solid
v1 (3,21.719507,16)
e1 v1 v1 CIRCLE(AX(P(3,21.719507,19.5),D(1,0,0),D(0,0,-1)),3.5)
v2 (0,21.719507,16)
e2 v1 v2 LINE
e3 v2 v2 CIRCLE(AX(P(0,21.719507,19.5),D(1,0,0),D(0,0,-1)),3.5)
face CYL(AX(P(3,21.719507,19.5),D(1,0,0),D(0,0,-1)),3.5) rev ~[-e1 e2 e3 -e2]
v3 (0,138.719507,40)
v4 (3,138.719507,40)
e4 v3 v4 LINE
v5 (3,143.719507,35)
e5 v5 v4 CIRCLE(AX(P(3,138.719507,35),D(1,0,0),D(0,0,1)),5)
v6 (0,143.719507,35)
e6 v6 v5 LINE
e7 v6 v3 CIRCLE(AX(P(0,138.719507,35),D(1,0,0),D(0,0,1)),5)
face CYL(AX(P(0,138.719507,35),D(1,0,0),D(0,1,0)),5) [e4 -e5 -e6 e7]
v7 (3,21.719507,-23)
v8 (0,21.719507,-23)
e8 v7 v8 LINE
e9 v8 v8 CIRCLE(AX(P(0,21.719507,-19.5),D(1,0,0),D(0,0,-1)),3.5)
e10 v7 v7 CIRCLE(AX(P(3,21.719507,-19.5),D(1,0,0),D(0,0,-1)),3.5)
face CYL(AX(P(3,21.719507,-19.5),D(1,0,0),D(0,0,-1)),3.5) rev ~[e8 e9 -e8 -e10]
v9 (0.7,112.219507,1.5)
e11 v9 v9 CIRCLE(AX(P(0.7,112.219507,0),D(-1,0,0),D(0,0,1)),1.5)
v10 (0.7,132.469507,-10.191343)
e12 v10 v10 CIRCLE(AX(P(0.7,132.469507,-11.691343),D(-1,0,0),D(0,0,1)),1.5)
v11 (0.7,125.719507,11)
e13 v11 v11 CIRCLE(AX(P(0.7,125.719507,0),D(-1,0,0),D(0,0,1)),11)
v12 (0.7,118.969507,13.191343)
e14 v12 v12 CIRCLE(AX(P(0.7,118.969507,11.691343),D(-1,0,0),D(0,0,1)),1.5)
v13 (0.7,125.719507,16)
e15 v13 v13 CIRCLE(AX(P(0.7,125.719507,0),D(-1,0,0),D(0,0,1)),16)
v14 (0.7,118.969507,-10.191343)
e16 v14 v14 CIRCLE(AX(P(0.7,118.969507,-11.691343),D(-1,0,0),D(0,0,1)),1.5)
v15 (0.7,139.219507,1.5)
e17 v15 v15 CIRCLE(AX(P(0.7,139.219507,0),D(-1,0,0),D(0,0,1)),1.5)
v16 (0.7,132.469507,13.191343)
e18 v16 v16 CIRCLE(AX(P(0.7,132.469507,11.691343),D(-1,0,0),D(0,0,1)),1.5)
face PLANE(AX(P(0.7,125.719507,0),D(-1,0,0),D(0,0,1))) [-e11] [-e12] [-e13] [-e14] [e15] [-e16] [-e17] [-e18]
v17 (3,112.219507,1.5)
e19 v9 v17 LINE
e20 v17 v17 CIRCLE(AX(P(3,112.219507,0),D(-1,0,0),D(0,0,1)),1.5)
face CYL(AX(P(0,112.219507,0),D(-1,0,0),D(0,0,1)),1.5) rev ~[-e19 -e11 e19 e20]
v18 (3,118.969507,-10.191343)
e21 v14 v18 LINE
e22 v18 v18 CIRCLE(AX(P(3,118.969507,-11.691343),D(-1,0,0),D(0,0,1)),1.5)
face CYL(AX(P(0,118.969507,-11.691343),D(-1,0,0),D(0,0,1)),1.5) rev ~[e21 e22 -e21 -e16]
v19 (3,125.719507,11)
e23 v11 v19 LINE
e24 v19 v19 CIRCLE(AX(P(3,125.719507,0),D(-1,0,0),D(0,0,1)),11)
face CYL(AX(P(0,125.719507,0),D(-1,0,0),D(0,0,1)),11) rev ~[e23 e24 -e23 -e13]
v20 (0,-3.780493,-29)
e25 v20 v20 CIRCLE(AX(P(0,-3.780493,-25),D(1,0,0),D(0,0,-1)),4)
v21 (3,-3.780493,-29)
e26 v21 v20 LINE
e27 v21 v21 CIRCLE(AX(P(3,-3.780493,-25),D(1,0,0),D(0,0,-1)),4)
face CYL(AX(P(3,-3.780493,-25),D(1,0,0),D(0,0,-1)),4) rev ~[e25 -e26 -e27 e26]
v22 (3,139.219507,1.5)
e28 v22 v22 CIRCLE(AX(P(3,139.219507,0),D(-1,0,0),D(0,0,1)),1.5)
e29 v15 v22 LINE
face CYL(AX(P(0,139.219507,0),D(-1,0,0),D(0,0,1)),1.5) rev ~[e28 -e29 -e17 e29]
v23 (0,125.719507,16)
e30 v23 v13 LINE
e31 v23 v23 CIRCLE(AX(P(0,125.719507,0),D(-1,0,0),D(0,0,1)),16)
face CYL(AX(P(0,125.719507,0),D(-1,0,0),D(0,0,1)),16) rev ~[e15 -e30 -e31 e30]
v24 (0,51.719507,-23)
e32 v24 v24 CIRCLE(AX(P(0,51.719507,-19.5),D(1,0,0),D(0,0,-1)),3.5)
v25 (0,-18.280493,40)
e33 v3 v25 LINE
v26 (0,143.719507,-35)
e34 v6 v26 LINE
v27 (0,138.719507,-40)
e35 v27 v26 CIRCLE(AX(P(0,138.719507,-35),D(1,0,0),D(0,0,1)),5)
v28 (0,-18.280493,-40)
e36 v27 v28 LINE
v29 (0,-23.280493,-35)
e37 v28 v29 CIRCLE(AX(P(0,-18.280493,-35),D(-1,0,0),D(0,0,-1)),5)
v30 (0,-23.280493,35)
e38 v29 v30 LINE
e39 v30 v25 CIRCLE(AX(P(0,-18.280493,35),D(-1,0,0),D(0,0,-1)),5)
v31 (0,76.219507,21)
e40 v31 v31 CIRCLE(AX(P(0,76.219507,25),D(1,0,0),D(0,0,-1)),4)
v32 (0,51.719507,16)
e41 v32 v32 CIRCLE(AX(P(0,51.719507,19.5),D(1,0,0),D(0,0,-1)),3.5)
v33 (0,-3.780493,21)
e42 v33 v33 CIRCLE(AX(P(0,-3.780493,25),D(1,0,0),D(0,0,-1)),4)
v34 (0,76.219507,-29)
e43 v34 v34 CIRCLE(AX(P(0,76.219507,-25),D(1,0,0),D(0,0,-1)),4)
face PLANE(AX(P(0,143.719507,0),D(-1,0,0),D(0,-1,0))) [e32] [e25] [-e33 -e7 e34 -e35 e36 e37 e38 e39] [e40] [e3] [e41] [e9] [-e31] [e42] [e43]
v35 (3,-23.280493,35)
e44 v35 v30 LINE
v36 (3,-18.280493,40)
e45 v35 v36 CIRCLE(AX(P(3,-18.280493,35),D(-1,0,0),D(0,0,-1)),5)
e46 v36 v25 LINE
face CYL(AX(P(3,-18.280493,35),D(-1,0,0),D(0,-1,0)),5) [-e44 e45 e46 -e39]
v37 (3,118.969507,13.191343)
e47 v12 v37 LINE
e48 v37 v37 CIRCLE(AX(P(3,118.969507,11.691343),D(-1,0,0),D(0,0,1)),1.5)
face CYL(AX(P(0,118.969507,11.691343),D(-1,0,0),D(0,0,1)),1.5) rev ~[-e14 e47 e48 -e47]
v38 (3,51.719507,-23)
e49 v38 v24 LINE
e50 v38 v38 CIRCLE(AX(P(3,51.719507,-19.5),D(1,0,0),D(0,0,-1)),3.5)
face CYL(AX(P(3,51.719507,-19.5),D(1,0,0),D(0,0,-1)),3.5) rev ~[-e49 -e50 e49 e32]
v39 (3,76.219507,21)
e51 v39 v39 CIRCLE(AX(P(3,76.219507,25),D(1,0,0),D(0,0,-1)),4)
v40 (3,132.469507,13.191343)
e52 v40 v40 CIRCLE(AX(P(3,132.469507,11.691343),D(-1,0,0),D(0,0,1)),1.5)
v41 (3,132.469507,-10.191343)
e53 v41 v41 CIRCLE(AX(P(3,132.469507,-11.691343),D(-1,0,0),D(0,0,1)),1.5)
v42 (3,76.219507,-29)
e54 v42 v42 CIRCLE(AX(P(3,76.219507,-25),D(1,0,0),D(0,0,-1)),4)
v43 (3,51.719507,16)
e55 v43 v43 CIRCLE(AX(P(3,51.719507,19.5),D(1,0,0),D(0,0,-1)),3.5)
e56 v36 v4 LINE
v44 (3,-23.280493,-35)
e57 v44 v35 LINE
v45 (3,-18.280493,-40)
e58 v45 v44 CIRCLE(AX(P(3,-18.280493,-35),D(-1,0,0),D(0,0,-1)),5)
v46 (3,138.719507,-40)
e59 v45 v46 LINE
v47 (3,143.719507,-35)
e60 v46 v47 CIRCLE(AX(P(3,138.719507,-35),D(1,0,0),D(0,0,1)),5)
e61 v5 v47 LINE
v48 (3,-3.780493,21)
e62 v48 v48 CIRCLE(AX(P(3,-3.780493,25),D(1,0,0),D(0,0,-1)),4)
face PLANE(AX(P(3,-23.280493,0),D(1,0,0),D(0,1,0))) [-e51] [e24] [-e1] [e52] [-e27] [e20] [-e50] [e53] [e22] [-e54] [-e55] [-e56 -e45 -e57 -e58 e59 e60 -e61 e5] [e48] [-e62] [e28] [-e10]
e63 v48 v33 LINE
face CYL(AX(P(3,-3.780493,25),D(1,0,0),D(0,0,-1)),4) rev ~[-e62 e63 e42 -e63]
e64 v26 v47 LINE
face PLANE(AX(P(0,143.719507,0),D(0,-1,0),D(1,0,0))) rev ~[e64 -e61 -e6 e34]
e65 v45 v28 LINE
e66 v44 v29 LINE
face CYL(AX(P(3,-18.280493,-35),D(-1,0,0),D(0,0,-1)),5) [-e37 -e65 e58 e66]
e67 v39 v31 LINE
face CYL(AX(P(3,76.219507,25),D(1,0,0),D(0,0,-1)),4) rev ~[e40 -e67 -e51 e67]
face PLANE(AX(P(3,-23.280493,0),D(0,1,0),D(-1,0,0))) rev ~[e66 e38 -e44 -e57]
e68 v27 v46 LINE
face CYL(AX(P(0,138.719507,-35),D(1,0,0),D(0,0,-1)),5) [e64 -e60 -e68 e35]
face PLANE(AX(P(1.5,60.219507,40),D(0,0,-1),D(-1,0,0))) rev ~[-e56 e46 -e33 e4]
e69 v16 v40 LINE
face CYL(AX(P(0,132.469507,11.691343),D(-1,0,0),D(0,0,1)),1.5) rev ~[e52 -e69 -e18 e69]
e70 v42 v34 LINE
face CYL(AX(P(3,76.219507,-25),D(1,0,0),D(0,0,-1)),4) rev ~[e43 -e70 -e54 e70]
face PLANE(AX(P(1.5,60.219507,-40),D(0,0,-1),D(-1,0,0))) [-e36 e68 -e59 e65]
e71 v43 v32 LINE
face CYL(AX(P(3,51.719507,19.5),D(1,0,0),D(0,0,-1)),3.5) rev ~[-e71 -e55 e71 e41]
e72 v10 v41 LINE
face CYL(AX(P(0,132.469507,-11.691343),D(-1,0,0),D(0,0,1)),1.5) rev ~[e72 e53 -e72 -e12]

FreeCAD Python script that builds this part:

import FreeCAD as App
import Part
import Sketcher

V = App.Vector


def edges_at(feature, points):
    """Names of the edges that pass closest to the given points."""
    edges = feature.Shape.Edges
    near = lambda p: min(range(len(edges)), key=lambda i: edges[i].distToShape(Part.Vertex(*p))[0])
    return sorted({f"Edge{near(p) + 1}" for p in points})

doc = App.newDocument("Part")
params = doc.addObject("Spreadsheet::Sheet", "Params")
for row, (alias, value) in enumerate([
    ("sketch1_width", "3 mm"),
    ("sketch1_height", "167 mm"),
    ("pad1_length", "80 mm"),
    ("sketch2_diameter", "7 mm"),
    ("sketch2_diameter2", "8 mm"),
    ("sketch3_diameter", "3 mm"),
    ("sketch3_diameter2", "22 mm"),
    ("sketch4_diameter", "32 mm"),
    ("pocket3_length", "0.7 mm"),
    ("fillet_radius", "5 mm"),
], start=1):
    params.set(f"A{row}", alias)
    params.set(f"B{row}", "=" + value)
    params.setAlias(f"B{row}", alias)

body = doc.addObject("PartDesign::Body", "Body")

sketch1 = body.newObject("Sketcher::SketchObject", "Sketch")
sketch1.AttachmentSupport = (doc.getObject("XY_Plane"), [""])
sketch1.MapMode = "FlatFace"
sketch1.addGeometry(Part.LineSegment(V(0, 143.7, 0), V(0, -23.3, 0)), False)
sketch1.addGeometry(Part.LineSegment(V(0, -23.3, 0), V(3, -23.3, 0)), False)
sketch1.addGeometry(Part.LineSegment(V(3, -23.3, 0), V(3, 143.7, 0)), False)
sketch1.addGeometry(Part.LineSegment(V(3, 143.7, 0), V(0, 143.7, 0)), False)
sketch1.addConstraint(Sketcher.Constraint("Coincident", 0, 2, 1, 1))
sketch1.addConstraint(Sketcher.Constraint("Coincident", 1, 2, 2, 1))
sketch1.addConstraint(Sketcher.Constraint("Coincident", 2, 2, 3, 1))
sketch1.addConstraint(Sketcher.Constraint("Coincident", 3, 2, 0, 1))
sketch1.addConstraint(Sketcher.Constraint("Vertical", 0))
sketch1.addConstraint(Sketcher.Constraint("Horizontal", 1))
sketch1.addConstraint(Sketcher.Constraint("Vertical", 2))
sketch1.addConstraint(Sketcher.Constraint("Horizontal", 3))
sketch1.addConstraint(Sketcher.Constraint("PointOnObject", 0, 2, -2))
sketch1.addConstraint(Sketcher.Constraint("DistanceX", 1, 1, 1, 2, 3.0))
sketch1.addConstraint(Sketcher.Constraint("DistanceY", 0, 2, 0, 1, 167.0))
sketch1.addConstraint(Sketcher.Constraint("DistanceY", 0, 2, -1, 1, 23.280493))
sketch1.setExpression("Constraints[9]", "Params.sketch1_width")
sketch1.setExpression("Constraints[10]", "Params.sketch1_height")
pad1 = body.newObject("PartDesign::Pad", "Pad")
pad1.Profile = sketch1
pad1.setExpression("Length", "Params.pad1_length")
pad1.Midplane = True

sketch2 = body.newObject("Sketcher::SketchObject", "Sketch001")
sketch2.AttachmentSupport = (doc.getObject("YZ_Plane"), [""])
sketch2.MapMode = "FlatFace"
sketch2.AttachmentOffset = App.Placement(V(0, 0, 3), App.Rotation())
sketch2.addGeometry(Part.Circle(V(21.7, 19.5, 0), V(0, 0, 1), 3.5), False)
sketch2.addGeometry(Part.Circle(V(21.7, -19.5, 0), V(0, 0, 1), 3.5), False)
sketch2.addGeometry(Part.Circle(V(51.7, -19.5, 0), V(0, 0, 1), 3.5), False)
sketch2.addGeometry(Part.Circle(V(51.7, 19.5, 0), V(0, 0, 1), 3.5), False)
sketch2.addGeometry(Part.Circle(V(76.2, -25, 0), V(0, 0, 1), 4), False)
sketch2.addGeometry(Part.Circle(V(76.2, 25, 0), V(0, 0, 1), 4), False)
sketch2.addGeometry(Part.Circle(V(-3.8, 25, 0), V(0, 0, 1), 4), False)
sketch2.addGeometry(Part.Circle(V(-3.8, -25, 0), V(0, 0, 1), 4), False)
sketch2.addConstraint(Sketcher.Constraint("Equal", 0, 1))
sketch2.addConstraint(Sketcher.Constraint("Equal", 1, 2))
sketch2.addConstraint(Sketcher.Constraint("Equal", 2, 3))
sketch2.addConstraint(Sketcher.Constraint("Equal", 4, 5))
sketch2.addConstraint(Sketcher.Constraint("Equal", 5, 6))
sketch2.addConstraint(Sketcher.Constraint("Equal", 6, 7))
sketch2.addConstraint(Sketcher.Constraint("Symmetric", 0, 3, 1, 3, -1))
sketch2.addConstraint(Sketcher.Constraint("Symmetric", 2, 3, 3, 3, -1))
sketch2.addConstraint(Sketcher.Constraint("Symmetric", 4, 3, 5, 3, -1))
sketch2.addConstraint(Sketcher.Constraint("Symmetric", 6, 3, 7, 3, -1))
sketch2.addConstraint(Sketcher.Constraint("Horizontal", 1, 3, 2, 3))
sketch2.addConstraint(Sketcher.Constraint("Horizontal", 5, 3, 6, 3))
sketch2.addConstraint(Sketcher.Constraint("Diameter", 0, 7.0))
sketch2.addConstraint(Sketcher.Constraint("Diameter", 4, 8.0))
sketch2.addConstraint(Sketcher.Constraint("DistanceY", 4, 3, -1, 1, 25.0))
sketch2.addConstraint(Sketcher.Constraint("DistanceY", 1, 3, 0, 3, 39.0))
sketch2.addConstraint(Sketcher.Constraint("DistanceX", 1, 3, 2, 3, 30.0))
sketch2.addConstraint(Sketcher.Constraint("DistanceX", 6, 3, 5, 3, 80.0))
sketch2.addConstraint(Sketcher.Constraint("DistanceX", 2, 3, 4, 3, 24.5))
sketch2.addConstraint(Sketcher.Constraint("DistanceX", -1, 1, 0, 3, 21.719507))
sketch2.setExpression("Constraints[12]", "Params.sketch2_diameter")
sketch2.setExpression("Constraints[13]", "Params.sketch2_diameter2")
pocket1 = body.newObject("PartDesign::Pocket", "Pocket")
pocket1.Profile = sketch2
pocket1.Type = "ThroughAll"

sketch3 = body.newObject("Sketcher::SketchObject", "Sketch002")
sketch3.AttachmentSupport = (doc.getObject("YZ_Plane"), [""])
sketch3.MapMode = "FlatFace"
sketch3.addGeometry(Part.Circle(V(139.2, 0, 0), V(0, 0, 1), 1.5), False)
sketch3.addGeometry(Part.Circle(V(125.7, 0, 0), V(0, 0, 1), 11), False)
sketch3.addGeometry(Part.Circle(V(132.5, 11.7, 0), V(0, 0, 1), 1.5), False)
sketch3.addGeometry(Part.Circle(V(119, 11.7, 0), V(0, 0, 1), 1.5), False)
sketch3.addGeometry(Part.Circle(V(112.2, 0, 0), V(0, 0, 1), 1.5), False)
sketch3.addGeometry(Part.Circle(V(119, -11.7, 0), V(0, 0, 1), 1.5), False)
sketch3.addGeometry(Part.Circle(V(132.5, -11.7, 0), V(0, 0, 1), 1.5), False)
sketch3.addConstraint(Sketcher.Constraint("Equal", 0, 2))
sketch3.addConstraint(Sketcher.Constraint("Equal", 2, 3))
sketch3.addConstraint(Sketcher.Constraint("Equal", 3, 4))
sketch3.addConstraint(Sketcher.Constraint("Equal", 4, 5))
sketch3.addConstraint(Sketcher.Constraint("Equal", 5, 6))
sketch3.addConstraint(Sketcher.Constraint("Symmetric", 3, 3, 5, 3, -1))
sketch3.addConstraint(Sketcher.Constraint("Symmetric", 2, 3, 6, 3, -1))
sketch3.addConstraint(Sketcher.Constraint("PointOnObject", 0, 3, -1))
sketch3.addConstraint(Sketcher.Constraint("PointOnObject", 1, 3, -1))
sketch3.addConstraint(Sketcher.Constraint("PointOnObject", 4, 3, -1))
sketch3.addConstraint(Sketcher.Constraint("Horizontal", 2, 3, 3, 3))
sketch3.addConstraint(Sketcher.Constraint("Diameter", 0, 3.0))
sketch3.addConstraint(Sketcher.Constraint("Diameter", 1, 22.0))
sketch3.addConstraint(Sketcher.Constraint("DistanceX", 4, 3, 0, 3, 27.0))
sketch3.addConstraint(Sketcher.Constraint("DistanceX", 1, 3, 0, 3, 13.5))
sketch3.addConstraint(Sketcher.Constraint("DistanceX", 3, 3, 2, 3, 13.5))
sketch3.addConstraint(Sketcher.Constraint("DistanceX", 2, 3, 0, 3, 6.75))
sketch3.addConstraint(Sketcher.Constraint("DistanceX", -1, 1, 0, 3, 139.219507))
sketch3.addConstraint(Sketcher.Constraint("DistanceY", -1, 1, 2, 3, 11.691343))
sketch3.setExpression("Constraints[11]", "Params.sketch3_diameter")
sketch3.setExpression("Constraints[12]", "Params.sketch3_diameter2")
pocket2 = body.newObject("PartDesign::Pocket", "Pocket001")
pocket2.Profile = sketch3
pocket2.Type = "ThroughAll"
pocket2.Reversed = True

sketch4 = body.newObject("Sketcher::SketchObject", "Sketch003")
sketch4.AttachmentSupport = (doc.getObject("YZ_Plane"), [""])
sketch4.MapMode = "FlatFace"
sketch4.addGeometry(Part.Circle(V(126, 0, 0), V(0, 0, 1), 16), False)
sketch4.addConstraint(Sketcher.Constraint("PointOnObject", 0, 3, -1))
sketch4.addConstraint(Sketcher.Constraint("Diameter", 0, 32.0))
sketch4.addConstraint(Sketcher.Constraint("DistanceX", -1, 1, 0, 3, 125.719507))
sketch4.setExpression("Constraints[1]", "Params.sketch4_diameter")
pocket3 = body.newObject("PartDesign::Pocket", "Pocket002")
pocket3.Profile = sketch4
pocket3.setExpression("Length", "Params.pocket3_length")
pocket3.Reversed = True
doc.recompute()

fillet = body.newObject("PartDesign::Fillet", "Fillet")
fillet.Base = (pocket3, edges_at(pocket3, [
    (1.5, 143.72, 40),
    (1.5, -23.28, 40),
    (1.5, 143.72, -40),
    (1.5, -23.28, -40),
]))
fillet.setExpression("Radius", "Params.fillet_radius")

doc.recompute()
